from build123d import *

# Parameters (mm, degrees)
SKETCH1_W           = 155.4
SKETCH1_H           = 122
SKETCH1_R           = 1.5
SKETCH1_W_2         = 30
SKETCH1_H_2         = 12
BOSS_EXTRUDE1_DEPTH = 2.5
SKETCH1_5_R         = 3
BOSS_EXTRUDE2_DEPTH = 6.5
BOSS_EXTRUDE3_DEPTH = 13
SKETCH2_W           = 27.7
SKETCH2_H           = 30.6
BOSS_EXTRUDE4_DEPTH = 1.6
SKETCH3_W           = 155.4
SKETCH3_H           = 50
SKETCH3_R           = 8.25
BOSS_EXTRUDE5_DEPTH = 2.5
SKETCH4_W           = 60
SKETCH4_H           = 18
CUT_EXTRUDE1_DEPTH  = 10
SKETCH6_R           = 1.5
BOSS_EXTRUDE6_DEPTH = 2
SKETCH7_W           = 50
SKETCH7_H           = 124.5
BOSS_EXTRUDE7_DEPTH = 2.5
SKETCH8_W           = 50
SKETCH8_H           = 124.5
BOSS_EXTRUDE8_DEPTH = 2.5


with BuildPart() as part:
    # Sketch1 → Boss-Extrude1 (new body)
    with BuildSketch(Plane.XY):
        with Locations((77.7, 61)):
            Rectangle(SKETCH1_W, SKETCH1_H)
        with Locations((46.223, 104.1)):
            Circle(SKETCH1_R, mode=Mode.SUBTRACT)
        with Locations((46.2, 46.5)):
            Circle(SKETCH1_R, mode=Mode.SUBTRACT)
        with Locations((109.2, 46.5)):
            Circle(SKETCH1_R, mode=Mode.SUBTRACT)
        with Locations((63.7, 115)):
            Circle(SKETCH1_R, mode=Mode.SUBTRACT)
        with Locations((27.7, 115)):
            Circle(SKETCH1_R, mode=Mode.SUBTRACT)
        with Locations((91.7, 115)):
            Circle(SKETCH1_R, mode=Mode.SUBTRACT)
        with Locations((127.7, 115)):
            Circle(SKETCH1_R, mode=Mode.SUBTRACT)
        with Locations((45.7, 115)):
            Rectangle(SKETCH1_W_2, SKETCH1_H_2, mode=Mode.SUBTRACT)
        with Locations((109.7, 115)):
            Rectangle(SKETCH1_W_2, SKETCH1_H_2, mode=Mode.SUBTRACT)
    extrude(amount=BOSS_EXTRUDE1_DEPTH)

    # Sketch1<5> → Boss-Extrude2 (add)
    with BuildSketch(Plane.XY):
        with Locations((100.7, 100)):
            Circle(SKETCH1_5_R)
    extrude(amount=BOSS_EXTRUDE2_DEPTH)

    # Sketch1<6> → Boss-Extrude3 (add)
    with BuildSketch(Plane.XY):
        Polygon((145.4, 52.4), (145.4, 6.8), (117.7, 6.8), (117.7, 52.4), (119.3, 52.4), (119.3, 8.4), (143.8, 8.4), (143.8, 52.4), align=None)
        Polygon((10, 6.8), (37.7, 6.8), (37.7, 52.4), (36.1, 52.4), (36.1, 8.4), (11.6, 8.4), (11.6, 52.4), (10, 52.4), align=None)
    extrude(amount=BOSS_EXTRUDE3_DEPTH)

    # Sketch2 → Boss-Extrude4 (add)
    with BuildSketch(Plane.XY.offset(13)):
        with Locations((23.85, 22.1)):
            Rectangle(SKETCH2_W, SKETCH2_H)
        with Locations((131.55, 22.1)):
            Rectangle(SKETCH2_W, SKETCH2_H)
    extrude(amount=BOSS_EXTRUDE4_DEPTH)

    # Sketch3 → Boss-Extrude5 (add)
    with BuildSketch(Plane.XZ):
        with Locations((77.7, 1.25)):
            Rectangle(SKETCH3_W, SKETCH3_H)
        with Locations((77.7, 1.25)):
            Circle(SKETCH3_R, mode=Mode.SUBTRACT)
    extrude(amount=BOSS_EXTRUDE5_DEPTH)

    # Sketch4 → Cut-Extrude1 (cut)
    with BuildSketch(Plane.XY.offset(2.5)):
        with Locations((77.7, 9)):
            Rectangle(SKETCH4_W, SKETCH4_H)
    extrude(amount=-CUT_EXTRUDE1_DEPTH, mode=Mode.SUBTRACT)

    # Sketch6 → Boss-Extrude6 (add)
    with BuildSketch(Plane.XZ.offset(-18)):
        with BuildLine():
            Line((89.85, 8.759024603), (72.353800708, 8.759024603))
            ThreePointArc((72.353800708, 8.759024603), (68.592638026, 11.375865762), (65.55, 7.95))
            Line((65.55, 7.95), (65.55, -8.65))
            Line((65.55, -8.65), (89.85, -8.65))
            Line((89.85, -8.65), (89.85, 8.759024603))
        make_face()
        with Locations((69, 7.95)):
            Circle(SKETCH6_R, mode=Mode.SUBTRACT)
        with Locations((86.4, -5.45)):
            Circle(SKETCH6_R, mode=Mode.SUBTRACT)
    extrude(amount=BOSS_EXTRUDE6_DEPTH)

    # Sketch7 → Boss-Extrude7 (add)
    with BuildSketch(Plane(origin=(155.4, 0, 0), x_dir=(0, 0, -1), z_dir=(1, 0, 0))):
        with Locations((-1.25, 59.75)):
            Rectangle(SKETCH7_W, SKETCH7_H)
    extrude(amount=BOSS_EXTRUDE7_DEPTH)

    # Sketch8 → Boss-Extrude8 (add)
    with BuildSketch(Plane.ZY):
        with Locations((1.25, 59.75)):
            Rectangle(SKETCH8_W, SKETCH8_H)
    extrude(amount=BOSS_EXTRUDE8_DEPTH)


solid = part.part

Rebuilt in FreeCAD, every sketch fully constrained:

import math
import FreeCAD as App
import Part
import Sketcher

V = App.Vector
Q = App.Units.Quantity

doc = App.newDocument("Part")
body = doc.addObject("PartDesign::Body", "Body")

sketch1 = doc.addObject("Sketcher::SketchObject", "Sketch")
body.addObject(sketch1)
sketch1.AttachmentSupport = (doc.XY_Plane, [""])
sketch1.MapMode = "FlatFace"
sketch1.addGeometry([
    Part.LineSegment(V(0, 122, 0), V(0, 0, 0)),
    Part.LineSegment(V(0, 0, 0), V(155.4, 0, 0)),
    Part.LineSegment(V(155.4, 0, 0), V(155.4, 122, 0)),
    Part.LineSegment(V(155.4, 122, 0), V(0, 122, 0)),
    Part.Circle(V(46.2, 46.5, 0), V(0, 0, 1), 1.5),
    Part.Circle(V(109.2, 46.5, 0), V(0, 0, 1), 1.5),
    Part.Circle(V(46.223, 104.1, 0), V(0, 0, 1), 1.5),
    Part.Circle(V(27.7, 115, 0), V(0, 0, 1), 1.5),
    Part.LineSegment(V(60.7, 109, 0), V(30.7, 109, 0)),
    Part.LineSegment(V(30.7, 109, 0), V(30.7, 121, 0)),
    Part.LineSegment(V(30.7, 121, 0), V(60.7, 121, 0)),
    Part.LineSegment(V(60.7, 121, 0), V(60.7, 109, 0)),
    Part.Circle(V(63.7, 115, 0), V(0, 0, 1), 1.5),
    Part.Circle(V(91.7, 115, 0), V(0, 0, 1), 1.5),
    Part.LineSegment(V(124.7, 109, 0), V(94.7, 109, 0)),
    Part.LineSegment(V(94.7, 109, 0), V(94.7, 121, 0)),
    Part.LineSegment(V(94.7, 121, 0), V(124.7, 121, 0)),
    Part.LineSegment(V(124.7, 121, 0), V(124.7, 109, 0)),
    Part.Circle(V(127.7, 115, 0), V(0, 0, 1), 1.5),
], False)
sketch1.addConstraint([
    Sketcher.Constraint("Coincident", 0, 2, 1, 1),
    Sketcher.Constraint("Coincident", 1, 2, 2, 1),
    Sketcher.Constraint("Coincident", 2, 2, 3, 1),
    Sketcher.Constraint("Coincident", 3, 2, 0, 1),
    Sketcher.Constraint("Coincident", 8, 2, 9, 1),
    Sketcher.Constraint("Coincident", 9, 2, 10, 1),
    Sketcher.Constraint("Coincident", 10, 2, 11, 1),
    Sketcher.Constraint("Coincident", 11, 2, 8, 1),
    Sketcher.Constraint("Coincident", 14, 2, 15, 1),
    Sketcher.Constraint("Coincident", 15, 2, 16, 1),
    Sketcher.Constraint("Coincident", 16, 2, 17, 1),
    Sketcher.Constraint("Coincident", 17, 2, 14, 1),
    Sketcher.Constraint("Vertical", 0),
    Sketcher.Constraint("Horizontal", 1),
    Sketcher.Constraint("Vertical", 2),
    Sketcher.Constraint("Horizontal", 3),
    Sketcher.Constraint("Horizontal", 8),
    Sketcher.Constraint("Vertical", 9),
    Sketcher.Constraint("Horizontal", 10),
    Sketcher.Constraint("Vertical", 11),
    Sketcher.Constraint("Horizontal", 14),
    Sketcher.Constraint("Vertical", 15),
    Sketcher.Constraint("Horizontal", 16),
    Sketcher.Constraint("Vertical", 17),
    Sketcher.Constraint("Coincident", 0, 2, -1, 1),
    Sketcher.Constraint("Equal", 4, 5),
    Sketcher.Constraint("Equal", 5, 6),
    Sketcher.Constraint("Equal", 6, 7),
    Sketcher.Constraint("Equal", 7, 12),
    Sketcher.Constraint("Equal", 12, 13),
    Sketcher.Constraint("Equal", 13, 18),
    Sketcher.Constraint("Horizontal", 4, 3, 5, 3),
    Sketcher.Constraint("Horizontal", 7, 3, 12, 3),
    Sketcher.Constraint("Horizontal", 12, 3, 13, 3),
    Sketcher.Constraint("Horizontal", 13, 3, 18, 3),
    Sketcher.Constraint("Horizontal", 11, 2, 14, 2),
    Sketcher.Constraint("Horizontal", 10, 2, 15, 2),
    Sketcher.Constraint("Equal", 10, 14),
    Sketcher.Constraint("Diameter", 4, Q("3 mm")),
    Sketcher.Constraint("DistanceX", 8, 2, 8, 1, Q("30 mm")),
    Sketcher.Constraint("DistanceY", 0, 2, 0, 1, Q("122 mm")),
    Sketcher.Constraint("DistanceY", 9, 1, 9, 2, Q("12 mm")),
    Sketcher.Constraint("DistanceX", 1, 1, 1, 2, Q("155.4 mm")),
    Sketcher.Constraint("DistanceY", -1, 1, 7, 3, Q("115 mm")),
    Sketcher.Constraint("DistanceY", -1, 1, 8, 2, Q("109 mm")),
    Sketcher.Constraint("DistanceX", 4, 3, 5, 3, Q("63 mm")),
    Sketcher.Constraint("DistanceX", 7, 3, 12, 3, Q("36 mm")),
    Sketcher.Constraint("DistanceX", 12, 3, 13, 3, Q("28 mm")),
    Sketcher.Constraint("DistanceX", 13, 3, 18, 3, Q("36 mm")),
    Sketcher.Constraint("DistanceX", 7, 3, 8, 2, Q("3 mm")),
    Sketcher.Constraint("DistanceX", 13, 3, 14, 2, Q("3 mm")),
    Sketcher.Constraint("DistanceX", -1, 1, 4, 3, Q("46.2 mm")),
    Sketcher.Constraint("DistanceY", -1, 1, 4, 3, Q("46.5 mm")),
    Sketcher.Constraint("DistanceY", -1, 1, 6, 3, Q("104.1 mm")),
    Sketcher.Constraint("DistanceX", -1, 1, 7, 3, Q("27.7 mm")),
    Sketcher.Constraint("DistanceX", -1, 1, 6, 3, Q("46.223 mm")),
])
pad1 = doc.addObject("PartDesign::Pad", "Pad")
body.addObject(pad1)
pad1.Profile = sketch1
pad1.Length = 2.5

sketch2 = doc.addObject("Sketcher::SketchObject", "Sketch001")
body.addObject(sketch2)
sketch2.AttachmentSupport = (doc.XY_Plane, [""])
sketch2.MapMode = "FlatFace"
sketch2.addGeometry(Part.Circle(V(100.7, 100, 0), V(0, 0, 1), 3), False)
sketch2.addConstraint([
    Sketcher.Constraint("Diameter", 0, Q("6 mm")),
    Sketcher.Constraint("DistanceY", -1, 1, 0, 3, Q("100 mm")),
    Sketcher.Constraint("DistanceX", -1, 1, 0, 3, Q("100.7 mm")),
])
pad2 = doc.addObject("PartDesign::Pad", "Pad001")
body.addObject(pad2)
pad2.Profile = sketch2
pad2.Length = 6.5

sketch3 = doc.addObject("Sketcher::SketchObject", "Sketch002")
body.addObject(sketch3)
sketch3.AttachmentSupport = (doc.XY_Plane, [""])
sketch3.MapMode = "FlatFace"
sketch3.addGeometry([
    Part.LineSegment(V(145.4, 6.8, 0), V(145.4, 52.4, 0)),
    Part.LineSegment(V(145.4, 52.4, 0), V(143.8, 52.4, 0)),
    Part.LineSegment(V(143.8, 52.4, 0), V(143.8, 8.4, 0)),
    Part.LineSegment(V(143.8, 8.4, 0), V(119.3, 8.4, 0)),
    Part.LineSegment(V(119.3, 8.4, 0), V(119.3, 52.4, 0)),
    Part.LineSegment(V(119.3, 52.4, 0), V(117.7, 52.4, 0)),
    Part.LineSegment(V(117.7, 52.4, 0), V(117.7, 6.8, 0)),
    Part.LineSegment(V(117.7, 6.8, 0), V(145.4, 6.8, 0)),
    Part.LineSegment(V(10, 6.8, 0), V(37.7, 6.8, 0)),
    Part.LineSegment(V(37.7, 6.8, 0), V(37.7, 52.4, 0)),
    Part.LineSegment(V(37.7, 52.4, 0), V(36.1, 52.4, 0)),
    Part.LineSegment(V(36.1, 52.4, 0), V(36.1, 8.4, 0)),
    Part.LineSegment(V(36.1, 8.4, 0), V(11.6, 8.4, 0)),
    Part.LineSegment(V(11.6, 8.4, 0), V(11.6, 52.4, 0)),
    Part.LineSegment(V(11.6, 52.4, 0), V(10, 52.4, 0)),
    Part.LineSegment(V(10, 52.4, 0), V(10, 6.8, 0)),
], False)
sketch3.addConstraint([
    Sketcher.Constraint("Coincident", 0, 2, 1, 1),
    Sketcher.Constraint("Coincident", 1, 2, 2, 1),
    Sketcher.Constraint("Coincident", 2, 2, 3, 1),
    Sketcher.Constraint("Coincident", 3, 2, 4, 1),
    Sketcher.Constraint("Coincident", 4, 2, 5, 1),
    Sketcher.Constraint("Coincident", 5, 2, 6, 1),
    Sketcher.Constraint("Coincident", 6, 2, 7, 1),
    Sketcher.Constraint("Coincident", 7, 2, 0, 1),
    Sketcher.Constraint("Coincident", 8, 2, 9, 1),
    Sketcher.Constraint("Coincident", 9, 2, 10, 1),
    Sketcher.Constraint("Coincident", 10, 2, 11, 1),
    Sketcher.Constraint("Coincident", 11, 2, 12, 1),
    Sketcher.Constraint("Coincident", 12, 2, 13, 1),
    Sketcher.Constraint("Coincident", 13, 2, 14, 1),
    Sketcher.Constraint("Coincident", 14, 2, 15, 1),
    Sketcher.Constraint("Coincident", 15, 2, 8, 1),
    Sketcher.Constraint("Vertical", 0),
    Sketcher.Constraint("Horizontal", 1),
    Sketcher.Constraint("Vertical", 2),
    Sketcher.Constraint("Horizontal", 3),
    Sketcher.Constraint("Vertical", 4),
    Sketcher.Constraint("Horizontal", 5),
    Sketcher.Constraint("Vertical", 6),
    Sketcher.Constraint("Horizontal", 7),
    Sketcher.Constraint("Horizontal", 8),
    Sketcher.Constraint("Vertical", 9),
    Sketcher.Constraint("Horizontal", 10),
    Sketcher.Constraint("Vertical", 11),
    Sketcher.Constraint("Horizontal", 12),
    Sketcher.Constraint("Vertical", 13),
    Sketcher.Constraint("Horizontal", 14),
    Sketcher.Constraint("Vertical", 15),
    Sketcher.Constraint("Horizontal", 1, 2, 4, 2),
    Sketcher.Constraint("Horizontal", 7, 2, 8, 2),
    Sketcher.Constraint("Horizontal", 5, 2, 9, 2),
    Sketcher.Constraint("Horizontal", 3, 2, 11, 2),
    Sketcher.Constraint("Horizontal", 10, 2, 13, 2),
    Sketcher.Constraint("Equal", 1, 5),
    Sketcher.Constraint("Equal", 7, 8),
    Sketcher.Constraint("Equal", 5, 10),
    Sketcher.Constraint("Equal", 3, 12),
    Sketcher.Constraint("DistanceY", 2, 2, 2, 1, Q("44 mm")),
    Sketcher.Constraint("DistanceX", 1, 2, 1, 1, Q("1.6 mm")),
    Sketcher.Constraint("DistanceX", 3, 2, 3, 1, Q("24.5 mm")),
    Sketcher.Constraint("DistanceY", 0, 1, 0, 2, Q("45.6 mm")),
    Sketcher.Constraint("DistanceX", -1, 1, 14, 2, Q("10 mm")),
    Sketcher.Constraint("DistanceX", 8, 2, 6, 2, Q("80 mm")),
    Sketcher.Constraint("DistanceY", -1, 1, 0, 2, Q("52.4 mm")),
])
pad3 = doc.addObject("PartDesign::Pad", "Pad002")
body.addObject(pad3)
pad3.Profile = sketch3
pad3.Length = 13

sketch4 = doc.addObject("Sketcher::SketchObject", "Sketch003")
body.addObject(sketch4)
sketch4.AttachmentSupport = (doc.XY_Plane, [""])
sketch4.MapMode = "FlatFace"
sketch4.AttachmentOffset = App.Placement(V(0, 0, 13), App.Rotation())
sketch4.addGeometry([
    Part.LineSegment(V(10, 37.4, 0), V(10, 6.8, 0)),
    Part.LineSegment(V(10, 6.8, 0), V(37.7, 6.8, 0)),
    Part.LineSegment(V(37.7, 6.8, 0), V(37.7, 37.4, 0)),
    Part.LineSegment(V(37.7, 37.4, 0), V(10, 37.4, 0)),
    Part.LineSegment(V(117.7, 37.4, 0), V(117.7, 6.8, 0)),
    Part.LineSegment(V(117.7, 6.8, 0), V(145.4, 6.8, 0)),
    Part.LineSegment(V(145.4, 6.8, 0), V(145.4, 37.4, 0)),
    Part.LineSegment(V(145.4, 37.4, 0), V(117.7, 37.4, 0)),
], False)
sketch4.addConstraint([
    Sketcher.Constraint("Coincident", 0, 2, 1, 1),
    Sketcher.Constraint("Coincident", 1, 2, 2, 1),
    Sketcher.Constraint("Coincident", 2, 2, 3, 1),
    Sketcher.Constraint("Coincident", 3, 2, 0, 1),
    Sketcher.Constraint("Coincident", 4, 2, 5, 1),
    Sketcher.Constraint("Coincident", 5, 2, 6, 1),
    Sketcher.Constraint("Coincident", 6, 2, 7, 1),
    Sketcher.Constraint("Coincident", 7, 2, 4, 1),
    Sketcher.Constraint("Vertical", 0),
    Sketcher.Constraint("Horizontal", 1),
    Sketcher.Constraint("Vertical", 2),
    Sketcher.Constraint("Horizontal", 3),
    Sketcher.Constraint("Vertical", 4),
    Sketcher.Constraint("Horizontal", 5),
    Sketcher.Constraint("Vertical", 6),
    Sketcher.Constraint("Horizontal", 7),
    Sketcher.Constraint("Horizontal", 1, 2, 4, 2),
    Sketcher.Constraint("Horizontal", 3, 2, 6, 2),
    Sketcher.Constraint("Equal", 3, 5),
    Sketcher.Constraint("DistanceX", 1, 1, 1, 2, Q("27.7 mm")),
    Sketcher.Constraint("DistanceY", 0, 2, 0, 1, Q("30.6 mm")),
    Sketcher.Constraint("DistanceX", -1, 1, 0, 2, Q("10 mm")),
    Sketcher.Constraint("DistanceX", 1, 2, 4, 2, Q("80 mm")),
    Sketcher.Constraint("DistanceY", -1, 1, 0, 2, Q("6.8 mm")),
])
pad4 = doc.addObject("PartDesign::Pad", "Pad003")
body.addObject(pad4)
pad4.Profile = sketch4
pad4.Length = 1.6

sketch5 = doc.addObject("Sketcher::SketchObject", "Sketch004")
body.addObject(sketch5)
sketch5.AttachmentSupport = (doc.XZ_Plane, [""])
sketch5.MapMode = "FlatFace"
sketch5.addGeometry([
    Part.LineSegment(V(0, 26.25, 0), V(0, -23.75, 0)),
    Part.LineSegment(V(0, -23.75, 0), V(155.4, -23.75, 0)),
    Part.LineSegment(V(155.4, -23.75, 0), V(155.4, 26.25, 0)),
    Part.LineSegment(V(155.4, 26.25, 0), V(0, 26.25, 0)),
    Part.Circle(V(77.7, 1.25, 0), V(0, 0, 1), 8.25),
], False)
sketch5.addConstraint([
    Sketcher.Constraint("Coincident", 0, 2, 1, 1),
    Sketcher.Constraint("Coincident", 1, 2, 2, 1),
    Sketcher.Constraint("Coincident", 2, 2, 3, 1),
    Sketcher.Constraint("Coincident", 3, 2, 0, 1),
    Sketcher.Constraint("Vertical", 0),
    Sketcher.Constraint("Horizontal", 1),
    Sketcher.Constraint("Vertical", 2),
    Sketcher.Constraint("Horizontal", 3),
    Sketcher.Constraint("PointOnObject", 0, 2, -2),
    Sketcher.Constraint("Diameter", 4, Q("16.5 mm")),
    Sketcher.Constraint("DistanceY", 0, 2, 0, 1, Q("50 mm")),
    Sketcher.Constraint("DistanceX", 1, 1, 1, 2, Q("155.4 mm")),
    Sketcher.Constraint("DistanceY", 0, 2, 4, 3, Q("25 mm")),
    Sketcher.Constraint("DistanceX", -1, 1, 4, 3, Q("77.7 mm")),
    Sketcher.Constraint("DistanceY", -1, 1, 4, 3, Q("1.25 mm")),
])
pad5 = doc.addObject("PartDesign::Pad", "Pad004")
body.addObject(pad5)
pad5.Profile = sketch5
pad5.Length = 2.5

sketch6 = doc.addObject("Sketcher::SketchObject", "Sketch005")
body.addObject(sketch6)
sketch6.AttachmentSupport = (doc.XY_Plane, [""])
sketch6.MapMode = "FlatFace"
sketch6.AttachmentOffset = App.Placement(V(0, 0, 2.5), App.Rotation())
sketch6.addGeometry([
    Part.LineSegment(V(47.7, 18, 0), V(47.7, 0, 0)),
    Part.LineSegment(V(47.7, 0, 0), V(107.7, 0, 0)),
    Part.LineSegment(V(107.7, 0, 0), V(107.7, 18, 0)),
    Part.LineSegment(V(107.7, 18, 0), V(47.7, 18, 0)),
], False)
sketch6.addConstraint([
    Sketcher.Constraint("Coincident", 0, 2, 1, 1),
    Sketcher.Constraint("Coincident", 1, 2, 2, 1),
    Sketcher.Constraint("Coincident", 2, 2, 3, 1),
    Sketcher.Constraint("Coincident", 3, 2, 0, 1),
    Sketcher.Constraint("Vertical", 0),
    Sketcher.Constraint("Horizontal", 1),
    Sketcher.Constraint("Vertical", 2),
    Sketcher.Constraint("Horizontal", 3),
    Sketcher.Constraint("PointOnObject", 0, 2, -1),
    Sketcher.Constraint("DistanceX", 1, 1, 1, 2, Q("60 mm")),
    Sketcher.Constraint("DistanceY", 0, 2, 0, 1, Q("18 mm")),
    Sketcher.Constraint("DistanceX", -1, 1, 0, 2, Q("47.7 mm")),
])
pocket1 = doc.addObject("PartDesign::Pocket", "Pocket")
body.addObject(pocket1)
pocket1.Profile = sketch6
pocket1.Length = 10

sketch7 = doc.addObject("Sketcher::SketchObject", "Sketch006")
body.addObject(sketch7)
sketch7.AttachmentSupport = (doc.XZ_Plane, [""])
sketch7.MapMode = "FlatFace"
sketch7.AttachmentOffset = App.Placement(V(0, 0, -18), App.Rotation())
sketch7.addGeometry([
    Part.LineSegment(V(89.85, 8.759025, 0), V(72.353801, 8.759025, 0)),
    Part.ArcOfCircle(Part.Circle(V(69, 7.95, 0), V(0, 0, 1), 3.45), math.radians(13.562145), math.radians(180)),
    Part.LineSegment(V(65.55, 7.95, 0), V(65.55, -8.65, 0)),
    Part.LineSegment(V(65.55, -8.65, 0), V(89.85, -8.65, 0)),
    Part.LineSegment(V(89.85, -8.65, 0), V(89.85, 8.759025, 0)),
    Part.Circle(V(86.4, -5.45, 0), V(0, 0, 1), 1.5),
    Part.Circle(V(69, 7.95, 0), V(0, 0, 1), 1.5),
], False)
sketch7.addConstraint([
    Sketcher.Constraint("Coincident", 0, 2, 1, 1),
    Sketcher.Constraint("Tangent", 1, 2, 2, 1),
    Sketcher.Constraint("Coincident", 2, 2, 3, 1),
    Sketcher.Constraint("Coincident", 3, 2, 4, 1),
    Sketcher.Constraint("Coincident", 4, 2, 0, 1),
    Sketcher.Constraint("Horizontal", 0),
    Sketcher.Constraint("Vertical", 2),
    Sketcher.Constraint("Horizontal", 3),
    Sketcher.Constraint("Vertical", 4),
    Sketcher.Constraint("Coincident", 6, 3, 1, 3),
    Sketcher.Constraint("Equal", 5, 6),
    Sketcher.Constraint("Diameter", 5, Q("3 mm")),
    Sketcher.Constraint("Radius", 1, Q("3.45 mm")),
    Sketcher.Constraint("DistanceX", 3, 1, 3, 2, Q("24.3 mm")),
    Sketcher.Constraint("DistanceY", 2, 2, 2, 1, Q("16.6 mm")),
    Sketcher.Constraint("DistanceX", -1, 1, 1, 3, Q("69 mm")),
    Sketcher.Constraint("DistanceX", -1, 1, 5, 3, Q("86.4 mm")),
    Sketcher.Constraint("DistanceY", 5, 3, 1, 3, Q("13.4 mm")),
    Sketcher.Constraint("DistanceY", -1, 1, 1, 3, Q("7.95 mm")),
    Sketcher.Constraint("DistanceX", 0, 2, 0, 1, Q("17.496199 mm")),
])
pad6 = doc.addObject("PartDesign::Pad", "Pad005")
body.addObject(pad6)
pad6.Profile = sketch7
pad6.Length = 2

sketch8 = doc.addObject("Sketcher::SketchObject", "Sketch007")
body.addObject(sketch8)
sketch8.AttachmentSupport = (doc.YZ_Plane, [""])
sketch8.MapMode = "FlatFace"
sketch8.AttachmentOffset = App.Placement(V(0, 0, 155.4), App.Rotation())
sketch8.addGeometry([
    Part.LineSegment(V(122, 26.25, 0), V(-2.5, 26.25, 0)),
    Part.LineSegment(V(-2.5, 26.25, 0), V(-2.5, -23.75, 0)),
    Part.LineSegment(V(-2.5, -23.75, 0), V(122, -23.75, 0)),
    Part.LineSegment(V(122, -23.75, 0), V(122, 26.25, 0)),
], False)
sketch8.addConstraint([
    Sketcher.Constraint("Coincident", 0, 2, 1, 1),
    Sketcher.Constraint("Coincident", 1, 2, 2, 1),
    Sketcher.Constraint("Coincident", 2, 2, 3, 1),
    Sketcher.Constraint("Coincident", 3, 2, 0, 1),
    Sketcher.Constraint("Horizontal", 0),
    Sketcher.Constraint("Vertical", 1),
    Sketcher.Constraint("Horizontal", 2),
    Sketcher.Constraint("Vertical", 3),
    Sketcher.Constraint("DistanceY", 1, 2, 1, 1, Q("50 mm")),
    Sketcher.Constraint("DistanceX", 0, 2, 0, 1, Q("124.5 mm")),
    Sketcher.Constraint("DistanceX", -1, 1, 2, 2, Q("122 mm")),
    Sketcher.Constraint("DistanceY", -1, 1, 0, 2, Q("26.25 mm")),
])
pad7 = doc.addObject("PartDesign::Pad", "Pad006")
body.addObject(pad7)
pad7.Profile = sketch8
pad7.Length = 2.5

sketch9 = doc.addObject("Sketcher::SketchObject", "Sketch008")
body.addObject(sketch9)
sketch9.AttachmentSupport = (doc.YZ_Plane, [""])
sketch9.MapMode = "FlatFace"
sketch9.addGeometry([
    Part.LineSegment(V(122, -23.75, 0), V(-2.5, -23.75, 0)),
    Part.LineSegment(V(-2.5, -23.75, 0), V(-2.5, 26.25, 0)),
    Part.LineSegment(V(-2.5, 26.25, 0), V(122, 26.25, 0)),
    Part.LineSegment(V(122, 26.25, 0), V(122, -23.75, 0)),
], False)
sketch9.addConstraint([
    Sketcher.Constraint("Coincident", 0, 2, 1, 1),
    Sketcher.Constraint("Coincident", 1, 2, 2, 1),
    Sketcher.Constraint("Coincident", 2, 2, 3, 1),
    Sketcher.Constraint("Coincident", 3, 2, 0, 1),
    Sketcher.Constraint("Horizontal", 0),
    Sketcher.Constraint("Vertical", 1),
    Sketcher.Constraint("Horizontal", 2),
    Sketcher.Constraint("Vertical", 3),
    Sketcher.Constraint("DistanceY", 1, 1, 1, 2, Q("50 mm")),
    Sketcher.Constraint("DistanceX", 0, 2, 0, 1, Q("124.5 mm")),
    Sketcher.Constraint("DistanceX", -1, 1, 2, 2, Q("122 mm")),
    Sketcher.Constraint("DistanceY", 0, 2, -1, 1, Q("23.75 mm")),
])
pad8 = doc.addObject("PartDesign::Pad", "Pad007")
body.addObject(pad8)
pad8.Profile = sketch9
pad8.Length = 2.5
pad8.Reversed = True

doc.recompute()
